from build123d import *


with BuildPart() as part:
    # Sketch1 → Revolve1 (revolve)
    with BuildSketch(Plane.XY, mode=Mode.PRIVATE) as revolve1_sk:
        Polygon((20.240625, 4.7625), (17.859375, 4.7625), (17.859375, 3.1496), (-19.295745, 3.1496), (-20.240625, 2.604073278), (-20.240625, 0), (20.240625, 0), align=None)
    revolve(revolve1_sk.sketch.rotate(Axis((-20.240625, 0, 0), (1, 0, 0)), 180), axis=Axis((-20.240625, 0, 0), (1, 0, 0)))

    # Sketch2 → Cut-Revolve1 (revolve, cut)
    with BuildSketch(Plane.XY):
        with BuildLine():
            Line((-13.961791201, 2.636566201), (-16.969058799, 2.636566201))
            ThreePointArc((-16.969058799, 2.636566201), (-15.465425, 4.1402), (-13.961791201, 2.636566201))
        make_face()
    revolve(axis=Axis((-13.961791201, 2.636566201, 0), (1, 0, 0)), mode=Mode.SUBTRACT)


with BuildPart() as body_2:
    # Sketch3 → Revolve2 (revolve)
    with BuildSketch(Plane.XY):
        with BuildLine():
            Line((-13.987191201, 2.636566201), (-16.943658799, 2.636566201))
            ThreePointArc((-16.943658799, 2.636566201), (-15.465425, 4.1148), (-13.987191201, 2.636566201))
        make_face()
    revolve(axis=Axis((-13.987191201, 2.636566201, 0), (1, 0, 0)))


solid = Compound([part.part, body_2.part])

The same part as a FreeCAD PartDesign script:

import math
import FreeCAD as App
import Part
import Sketcher
Q = App.Units.Quantity


def add_polygon(sketch, points):
    """Adds a closed chain of lines whose ends are joined by coincident constraints."""
    first, n = sketch.GeometryCount, len(points)
    for a, b in zip(points, points[1:] + points[:1]):
        sketch.addGeometry(Part.LineSegment(App.Vector(*a, 0), App.Vector(*b, 0)), False)
    for i in range(n):
        sketch.addConstraint(Sketcher.Constraint("Coincident", first + i, 2, first + (i + 1) % n, 1))

doc = App.newDocument("Part")
params = doc.addObject("Spreadsheet::Sheet", "Params")
for row, (alias, value) in enumerate([
    ("sketch1_width", "0.09375 in"),
    ("sketch1_height", "0.1875 in"),
    ("revolution_angle", "360 deg"),
    ("groove_angle", "360 deg"),
    ("revolution2_angle", "360 deg"),
], start=1):
    params.set(f"A{row}", alias)
    params.set(f"B{row}", "=" + value)
    params.setAlias(f"B{row}", alias)

body = doc.addObject("PartDesign::Body", "Body")

# Sketch on XY plane
sketch1 = doc.addObject("Sketcher::SketchObject", "Sketch")
body.addObject(sketch1)
sketch1.AttachmentSupport = (doc.XY_Plane, [""])
sketch1.MapMode = "FlatFace"
add_polygon(sketch1, [(20.2, 4.8), (17.9, 4.8), (17.9, 3.1), (-19.3, 3.1), (-20.2, 2.6), (-20.2, 0), (20.2, 0)])  # lines 0-6
sketch1.addConstraint([
    Sketcher.Constraint("Horizontal", 0),
    Sketcher.Constraint("Vertical", 1),
    Sketcher.Constraint("Horizontal", 2),
    Sketcher.Constraint("Vertical", 4),
    Sketcher.Constraint("Horizontal", 5),
    Sketcher.Constraint("Vertical", 6),
    Sketcher.Constraint("Symmetric", 4, 2, 5, 2, -1, 1),
    Sketcher.Constraint("Angle", 3, Q("-150 deg")),
    Sketcher.Constraint("DistanceX", 3, 2, 1, 2, Q("1.5 in")),
    Sketcher.Constraint("DistanceX", 0, 2, 0, 1, Q("0.09375 in")),
    Sketcher.Constraint("DistanceY", 6, 1, 6, 2, Q("0.1875 in")),
    Sketcher.Constraint("DistanceX", 2, 2, 2, 1, Q("1.4628 in")),
    Sketcher.Constraint("DistanceY", 1, 2, 1, 1, Q("0.0635 in")),
])
sketch1.setExpression("Constraints[16]", "Params.sketch1_width")
sketch1.setExpression("Constraints[17]", "Params.sketch1_height")
revolution = doc.addObject("PartDesign::Revolution", "Revolution")
body.addObject(revolution)
revolution.Profile = sketch1
revolution.ReferenceAxis = (sketch1, ["H_Axis"])
revolution.setExpression("Angle", "Params.revolution_angle")

# Sketch on XY plane
sketch2 = doc.addObject("Sketcher::SketchObject", "Sketch001")
body.addObject(sketch2)
sketch2.AttachmentSupport = (doc.XY_Plane, [""])
sketch2.MapMode = "FlatFace"
sketch2.addGeometry([
    Part.LineSegment(App.Vector(-17, 2.6, 0), App.Vector(-14, 2.6, 0)),
    Part.ArcOfCircle(Part.Circle(App.Vector(-15.5, 2.6, 0), App.Vector(0, 0, 1), 1.5), math.radians(0), math.radians(180)),
], False)
sketch2.addGeometry(Part.LineSegment(App.Vector(-17, 2.6, 0), App.Vector(-14, 2.6, 0)), True)  # axis
sketch2.addConstraint([
    Sketcher.Constraint("Coincident", 0, 1, 1, 2),
    Sketcher.Constraint("Coincident", 1, 1, 0, 2),
    Sketcher.Constraint("Horizontal", 0),
    Sketcher.Constraint("Horizontal", 2),
    Sketcher.Constraint("Coincident", 2, 1, 0, 1),
    Sketcher.Constraint("Horizontal", 1, 3, 0, 1),
    Sketcher.Constraint("Equal", 0, 2),
    Sketcher.Constraint("Radius", 1, 1.503634),
    Sketcher.Constraint("DistanceX", 0, 1, -1, 1, 16.969059),
    Sketcher.Constraint("DistanceY", -1, 1, 1, 3, 2.636566),
])
groove = doc.addObject("PartDesign::Groove", "Groove")
body.addObject(groove)
groove.Profile = sketch2
groove.ReferenceAxis = (sketch2, ["Axis0"])
groove.setExpression("Angle", "Params.groove_angle")
body2 = doc.addObject("PartDesign::Body", "Body001")

# Sketch on XY plane
sketch3 = doc.addObject("Sketcher::SketchObject", "Sketch002")
body2.addObject(sketch3)
sketch3.AttachmentSupport = (doc.getObject("XY_Plane001"), [""])
sketch3.MapMode = "FlatFace"
sketch3.addGeometry([
    Part.LineSegment(App.Vector(-16.9, 2.6, 0), App.Vector(-14, 2.6, 0)),
    Part.ArcOfCircle(Part.Circle(App.Vector(-15.5, 2.6, 0), App.Vector(0, 0, 1), 1.5), math.radians(0), math.radians(180)),
], False)
sketch3.addGeometry(Part.LineSegment(App.Vector(-16.9, 2.6, 0), App.Vector(-14, 2.6, 0)), True)  # axis
sketch3.addConstraint([
    Sketcher.Constraint("Coincident", 0, 1, 1, 2),
    Sketcher.Constraint("Coincident", 1, 1, 0, 2),
    Sketcher.Constraint("Horizontal", 0),
    Sketcher.Constraint("Horizontal", 2),
    Sketcher.Constraint("Coincident", 2, 1, 0, 1),
    Sketcher.Constraint("Horizontal", 1, 3, 0, 1),
    Sketcher.Constraint("Equal", 0, 2),
    Sketcher.Constraint("Radius", 1, 1.478234),
    Sketcher.Constraint("DistanceX", 0, 1, -1, 1, 16.943659),
    Sketcher.Constraint("DistanceY", -1, 1, 1, 3, 2.636566),
])
revolution2 = doc.addObject("PartDesign::Revolution", "Revolution001")
body2.addObject(revolution2)
revolution2.Profile = sketch3
revolution2.ReferenceAxis = (sketch3, ["Axis0"])
revolution2.setExpression("Angle", "Params.revolution2_angle")

doc.recompute()
